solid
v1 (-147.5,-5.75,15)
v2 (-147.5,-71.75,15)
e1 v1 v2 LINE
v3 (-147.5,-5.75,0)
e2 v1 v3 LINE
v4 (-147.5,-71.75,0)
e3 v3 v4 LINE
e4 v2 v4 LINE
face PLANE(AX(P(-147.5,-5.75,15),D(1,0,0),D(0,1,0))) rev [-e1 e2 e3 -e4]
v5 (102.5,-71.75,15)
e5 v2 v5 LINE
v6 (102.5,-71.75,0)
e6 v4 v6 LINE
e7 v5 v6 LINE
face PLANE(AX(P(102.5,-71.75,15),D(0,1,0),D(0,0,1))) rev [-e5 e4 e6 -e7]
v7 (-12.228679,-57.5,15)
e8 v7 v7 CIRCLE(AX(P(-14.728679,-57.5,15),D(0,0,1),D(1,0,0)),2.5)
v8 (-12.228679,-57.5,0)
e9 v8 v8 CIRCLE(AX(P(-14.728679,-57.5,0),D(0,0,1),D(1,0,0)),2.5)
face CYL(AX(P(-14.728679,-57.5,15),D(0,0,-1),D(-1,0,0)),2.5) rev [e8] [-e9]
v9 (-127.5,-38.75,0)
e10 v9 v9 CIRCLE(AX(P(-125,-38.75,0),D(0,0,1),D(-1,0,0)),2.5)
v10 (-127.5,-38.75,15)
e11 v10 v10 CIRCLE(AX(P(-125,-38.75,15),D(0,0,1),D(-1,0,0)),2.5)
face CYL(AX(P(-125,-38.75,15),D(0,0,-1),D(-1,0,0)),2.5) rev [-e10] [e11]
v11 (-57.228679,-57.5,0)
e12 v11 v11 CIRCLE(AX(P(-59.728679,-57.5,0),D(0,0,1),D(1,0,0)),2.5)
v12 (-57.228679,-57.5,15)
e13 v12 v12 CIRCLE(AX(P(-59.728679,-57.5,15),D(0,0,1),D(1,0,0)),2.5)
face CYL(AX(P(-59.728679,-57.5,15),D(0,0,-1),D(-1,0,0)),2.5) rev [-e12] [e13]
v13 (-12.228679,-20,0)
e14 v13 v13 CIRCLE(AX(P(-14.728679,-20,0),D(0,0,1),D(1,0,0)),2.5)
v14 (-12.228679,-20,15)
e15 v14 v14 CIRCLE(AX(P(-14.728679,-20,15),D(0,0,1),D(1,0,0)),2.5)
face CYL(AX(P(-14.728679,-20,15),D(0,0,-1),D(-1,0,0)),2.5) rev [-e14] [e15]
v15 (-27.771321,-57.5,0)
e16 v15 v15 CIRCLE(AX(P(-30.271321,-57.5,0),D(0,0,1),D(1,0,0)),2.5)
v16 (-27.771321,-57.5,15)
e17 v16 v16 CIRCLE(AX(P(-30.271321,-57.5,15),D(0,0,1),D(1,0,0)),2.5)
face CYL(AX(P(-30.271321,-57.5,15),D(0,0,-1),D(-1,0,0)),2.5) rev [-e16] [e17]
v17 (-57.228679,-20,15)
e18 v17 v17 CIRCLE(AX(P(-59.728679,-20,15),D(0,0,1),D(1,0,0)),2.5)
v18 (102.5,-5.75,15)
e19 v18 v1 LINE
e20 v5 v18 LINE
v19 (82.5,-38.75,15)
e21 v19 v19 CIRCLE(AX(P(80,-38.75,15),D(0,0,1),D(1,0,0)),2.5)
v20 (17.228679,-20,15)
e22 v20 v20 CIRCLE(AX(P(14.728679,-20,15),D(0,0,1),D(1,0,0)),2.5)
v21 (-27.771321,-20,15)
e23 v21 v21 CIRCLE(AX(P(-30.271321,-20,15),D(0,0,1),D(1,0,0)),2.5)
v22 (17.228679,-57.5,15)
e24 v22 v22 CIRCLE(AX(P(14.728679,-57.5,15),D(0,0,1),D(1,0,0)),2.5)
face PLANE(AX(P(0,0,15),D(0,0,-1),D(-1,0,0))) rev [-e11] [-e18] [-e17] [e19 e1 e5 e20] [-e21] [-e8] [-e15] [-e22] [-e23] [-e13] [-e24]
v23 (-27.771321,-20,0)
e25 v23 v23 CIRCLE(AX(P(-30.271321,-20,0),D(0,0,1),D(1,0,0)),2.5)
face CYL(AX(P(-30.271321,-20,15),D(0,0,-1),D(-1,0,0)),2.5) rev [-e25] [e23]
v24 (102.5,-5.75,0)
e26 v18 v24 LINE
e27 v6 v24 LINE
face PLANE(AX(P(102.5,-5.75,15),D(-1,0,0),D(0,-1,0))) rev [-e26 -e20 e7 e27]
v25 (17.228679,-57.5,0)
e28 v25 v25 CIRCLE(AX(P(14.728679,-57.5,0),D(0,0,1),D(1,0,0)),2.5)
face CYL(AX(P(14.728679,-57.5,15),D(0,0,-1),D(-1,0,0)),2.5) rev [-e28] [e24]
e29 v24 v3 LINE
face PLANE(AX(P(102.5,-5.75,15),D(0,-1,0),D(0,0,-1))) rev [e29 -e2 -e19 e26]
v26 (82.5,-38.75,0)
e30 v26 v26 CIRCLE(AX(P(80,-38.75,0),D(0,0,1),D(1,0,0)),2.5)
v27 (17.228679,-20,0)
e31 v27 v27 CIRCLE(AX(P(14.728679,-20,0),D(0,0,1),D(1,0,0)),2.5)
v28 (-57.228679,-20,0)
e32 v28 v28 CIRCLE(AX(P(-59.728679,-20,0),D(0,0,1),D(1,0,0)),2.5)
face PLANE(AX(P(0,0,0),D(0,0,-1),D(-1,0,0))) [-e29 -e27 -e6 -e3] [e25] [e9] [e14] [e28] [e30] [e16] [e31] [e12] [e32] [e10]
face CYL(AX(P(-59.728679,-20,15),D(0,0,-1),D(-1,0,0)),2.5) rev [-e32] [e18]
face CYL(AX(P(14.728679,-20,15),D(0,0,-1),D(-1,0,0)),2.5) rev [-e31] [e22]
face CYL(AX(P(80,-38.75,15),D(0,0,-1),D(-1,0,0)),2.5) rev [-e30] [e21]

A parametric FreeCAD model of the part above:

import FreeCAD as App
import Part
import Sketcher

V = App.Vector


def add_polygon(sketch, points):
    """Adds a closed chain of lines whose ends are joined by coincident constraints."""
    first, n = sketch.GeometryCount, len(points)
    for a, b in zip(points, points[1:] + points[:1]):
        sketch.addGeometry(Part.LineSegment(App.Vector(*a, 0), App.Vector(*b, 0)), False)
    for i in range(n):
        sketch.addConstraint(Sketcher.Constraint("Coincident", first + i, 2, first + (i + 1) % n, 1))

doc = App.newDocument("Part")
body = doc.addObject("PartDesign::Body", "Body")

# Sketch on XY plane
sketch1 = body.newObject("Sketcher::SketchObject", "Sketch")
sketch1.AttachmentSupport = (doc.getObject("XY_Plane"), [""])
sketch1.MapMode = "FlatFace"
add_polygon(sketch1, [(-147.5, -5.8), (-147.5, -71.8), (102.5, -71.8), (102.5, -5.8)])  # lines 0-3
sketch1.addGeometry(Part.Circle(V(-59.7, -57.5, 0), V(0, 0, 1), 2.5), False)  # 4
sketch1.addGeometry(Part.Circle(V(-30.3, -57.5, 0), V(0, 0, 1), 2.5), False)  # 5
sketch1.addGeometry(Part.Circle(V(-14.7, -57.5, 0), V(0, 0, 1), 2.5), False)  # 6
sketch1.addGeometry(Part.Circle(V(14.7, -57.5, 0), V(0, 0, 1), 2.5), False)  # 7
sketch1.addGeometry(Part.Circle(V(-125, -38.8, 0), V(0, 0, 1), 2.5), False)  # 8
sketch1.addGeometry(Part.Circle(V(-59.7, -20, 0), V(0, 0, 1), 2.5), False)  # 9
sketch1.addGeometry(Part.Circle(V(-30.3, -20, 0), V(0, 0, 1), 2.5), False)  # 10
sketch1.addGeometry(Part.Circle(V(80, -38.8, 0), V(0, 0, 1), 2.5), False)  # 11
sketch1.addGeometry(Part.Circle(V(-14.7, -20, 0), V(0, 0, 1), 2.5), False)  # 12
sketch1.addGeometry(Part.Circle(V(14.7, -20, 0), V(0, 0, 1), 2.5), False)  # 13
sketch1.addConstraint([
    Sketcher.Constraint("Vertical", 0),
    Sketcher.Constraint("Horizontal", 1),
    Sketcher.Constraint("Vertical", 2),
    Sketcher.Constraint("Horizontal", 3),
    Sketcher.Constraint("Equal", 4, 5),
    Sketcher.Constraint("Equal", 5, 6),
    Sketcher.Constraint("Equal", 6, 7),
    Sketcher.Constraint("Equal", 7, 8),
    Sketcher.Constraint("Equal", 8, 9),
    Sketcher.Constraint("Equal", 9, 10),
    Sketcher.Constraint("Equal", 10, 11),
    Sketcher.Constraint("Equal", 11, 12),
    Sketcher.Constraint("Equal", 12, 13),
    Sketcher.Constraint("Symmetric", 6, 3, 7, 3, -2),
    Sketcher.Constraint("Symmetric", 12, 3, 13, 3, -2),
    Sketcher.Constraint("Horizontal", 4, 3, 5, 3),
    Sketcher.Constraint("Horizontal", 5, 3, 6, 3),
    Sketcher.Constraint("Horizontal", 9, 3, 10, 3),
    Sketcher.Constraint("Horizontal", 8, 3, 11, 3),
    Sketcher.Constraint("Horizontal", 10, 3, 12, 3),
    Sketcher.Constraint("Vertical", 4, 3, 9, 3),
    Sketcher.Constraint("Vertical", 5, 3, 10, 3),
    Sketcher.Constraint("Vertical", 6, 3, 12, 3),
    Sketcher.Constraint("Diameter", 4, 5.0),
    Sketcher.Constraint("DistanceX", 1, 1, 1, 2, 250.0),
    Sketcher.Constraint("DistanceY", 0, 2, 0, 1, 66.0),
    Sketcher.Constraint("DistanceX", 8, 3, -1, 1, 125.0),
    Sketcher.Constraint("DistanceY", 9, 3, -1, 1, 20.0),
    Sketcher.Constraint("DistanceX", -1, 1, 11, 3, 80.0),
    Sketcher.Constraint("DistanceX", 4, 3, 6, 3, 45.0),
    Sketcher.Constraint("DistanceX", 5, 3, 7, 3, 45.0),
    Sketcher.Constraint("DistanceY", 0, 2, 8, 3, 33.0),
    Sketcher.Constraint("DistanceY", 4, 3, -1, 1, 57.5),
    Sketcher.Constraint("DistanceX", 0, 2, -1, 1, 147.5),
    Sketcher.Constraint("DistanceY", 8, 3, -1, 1, 38.75),
    Sketcher.Constraint("DistanceX", 4, 3, -1, 1, 59.728679),
])
pad1 = body.newObject("PartDesign::Pad", "Pad")
pad1.Profile = sketch1
pad1.Length = 15

doc.recompute()
